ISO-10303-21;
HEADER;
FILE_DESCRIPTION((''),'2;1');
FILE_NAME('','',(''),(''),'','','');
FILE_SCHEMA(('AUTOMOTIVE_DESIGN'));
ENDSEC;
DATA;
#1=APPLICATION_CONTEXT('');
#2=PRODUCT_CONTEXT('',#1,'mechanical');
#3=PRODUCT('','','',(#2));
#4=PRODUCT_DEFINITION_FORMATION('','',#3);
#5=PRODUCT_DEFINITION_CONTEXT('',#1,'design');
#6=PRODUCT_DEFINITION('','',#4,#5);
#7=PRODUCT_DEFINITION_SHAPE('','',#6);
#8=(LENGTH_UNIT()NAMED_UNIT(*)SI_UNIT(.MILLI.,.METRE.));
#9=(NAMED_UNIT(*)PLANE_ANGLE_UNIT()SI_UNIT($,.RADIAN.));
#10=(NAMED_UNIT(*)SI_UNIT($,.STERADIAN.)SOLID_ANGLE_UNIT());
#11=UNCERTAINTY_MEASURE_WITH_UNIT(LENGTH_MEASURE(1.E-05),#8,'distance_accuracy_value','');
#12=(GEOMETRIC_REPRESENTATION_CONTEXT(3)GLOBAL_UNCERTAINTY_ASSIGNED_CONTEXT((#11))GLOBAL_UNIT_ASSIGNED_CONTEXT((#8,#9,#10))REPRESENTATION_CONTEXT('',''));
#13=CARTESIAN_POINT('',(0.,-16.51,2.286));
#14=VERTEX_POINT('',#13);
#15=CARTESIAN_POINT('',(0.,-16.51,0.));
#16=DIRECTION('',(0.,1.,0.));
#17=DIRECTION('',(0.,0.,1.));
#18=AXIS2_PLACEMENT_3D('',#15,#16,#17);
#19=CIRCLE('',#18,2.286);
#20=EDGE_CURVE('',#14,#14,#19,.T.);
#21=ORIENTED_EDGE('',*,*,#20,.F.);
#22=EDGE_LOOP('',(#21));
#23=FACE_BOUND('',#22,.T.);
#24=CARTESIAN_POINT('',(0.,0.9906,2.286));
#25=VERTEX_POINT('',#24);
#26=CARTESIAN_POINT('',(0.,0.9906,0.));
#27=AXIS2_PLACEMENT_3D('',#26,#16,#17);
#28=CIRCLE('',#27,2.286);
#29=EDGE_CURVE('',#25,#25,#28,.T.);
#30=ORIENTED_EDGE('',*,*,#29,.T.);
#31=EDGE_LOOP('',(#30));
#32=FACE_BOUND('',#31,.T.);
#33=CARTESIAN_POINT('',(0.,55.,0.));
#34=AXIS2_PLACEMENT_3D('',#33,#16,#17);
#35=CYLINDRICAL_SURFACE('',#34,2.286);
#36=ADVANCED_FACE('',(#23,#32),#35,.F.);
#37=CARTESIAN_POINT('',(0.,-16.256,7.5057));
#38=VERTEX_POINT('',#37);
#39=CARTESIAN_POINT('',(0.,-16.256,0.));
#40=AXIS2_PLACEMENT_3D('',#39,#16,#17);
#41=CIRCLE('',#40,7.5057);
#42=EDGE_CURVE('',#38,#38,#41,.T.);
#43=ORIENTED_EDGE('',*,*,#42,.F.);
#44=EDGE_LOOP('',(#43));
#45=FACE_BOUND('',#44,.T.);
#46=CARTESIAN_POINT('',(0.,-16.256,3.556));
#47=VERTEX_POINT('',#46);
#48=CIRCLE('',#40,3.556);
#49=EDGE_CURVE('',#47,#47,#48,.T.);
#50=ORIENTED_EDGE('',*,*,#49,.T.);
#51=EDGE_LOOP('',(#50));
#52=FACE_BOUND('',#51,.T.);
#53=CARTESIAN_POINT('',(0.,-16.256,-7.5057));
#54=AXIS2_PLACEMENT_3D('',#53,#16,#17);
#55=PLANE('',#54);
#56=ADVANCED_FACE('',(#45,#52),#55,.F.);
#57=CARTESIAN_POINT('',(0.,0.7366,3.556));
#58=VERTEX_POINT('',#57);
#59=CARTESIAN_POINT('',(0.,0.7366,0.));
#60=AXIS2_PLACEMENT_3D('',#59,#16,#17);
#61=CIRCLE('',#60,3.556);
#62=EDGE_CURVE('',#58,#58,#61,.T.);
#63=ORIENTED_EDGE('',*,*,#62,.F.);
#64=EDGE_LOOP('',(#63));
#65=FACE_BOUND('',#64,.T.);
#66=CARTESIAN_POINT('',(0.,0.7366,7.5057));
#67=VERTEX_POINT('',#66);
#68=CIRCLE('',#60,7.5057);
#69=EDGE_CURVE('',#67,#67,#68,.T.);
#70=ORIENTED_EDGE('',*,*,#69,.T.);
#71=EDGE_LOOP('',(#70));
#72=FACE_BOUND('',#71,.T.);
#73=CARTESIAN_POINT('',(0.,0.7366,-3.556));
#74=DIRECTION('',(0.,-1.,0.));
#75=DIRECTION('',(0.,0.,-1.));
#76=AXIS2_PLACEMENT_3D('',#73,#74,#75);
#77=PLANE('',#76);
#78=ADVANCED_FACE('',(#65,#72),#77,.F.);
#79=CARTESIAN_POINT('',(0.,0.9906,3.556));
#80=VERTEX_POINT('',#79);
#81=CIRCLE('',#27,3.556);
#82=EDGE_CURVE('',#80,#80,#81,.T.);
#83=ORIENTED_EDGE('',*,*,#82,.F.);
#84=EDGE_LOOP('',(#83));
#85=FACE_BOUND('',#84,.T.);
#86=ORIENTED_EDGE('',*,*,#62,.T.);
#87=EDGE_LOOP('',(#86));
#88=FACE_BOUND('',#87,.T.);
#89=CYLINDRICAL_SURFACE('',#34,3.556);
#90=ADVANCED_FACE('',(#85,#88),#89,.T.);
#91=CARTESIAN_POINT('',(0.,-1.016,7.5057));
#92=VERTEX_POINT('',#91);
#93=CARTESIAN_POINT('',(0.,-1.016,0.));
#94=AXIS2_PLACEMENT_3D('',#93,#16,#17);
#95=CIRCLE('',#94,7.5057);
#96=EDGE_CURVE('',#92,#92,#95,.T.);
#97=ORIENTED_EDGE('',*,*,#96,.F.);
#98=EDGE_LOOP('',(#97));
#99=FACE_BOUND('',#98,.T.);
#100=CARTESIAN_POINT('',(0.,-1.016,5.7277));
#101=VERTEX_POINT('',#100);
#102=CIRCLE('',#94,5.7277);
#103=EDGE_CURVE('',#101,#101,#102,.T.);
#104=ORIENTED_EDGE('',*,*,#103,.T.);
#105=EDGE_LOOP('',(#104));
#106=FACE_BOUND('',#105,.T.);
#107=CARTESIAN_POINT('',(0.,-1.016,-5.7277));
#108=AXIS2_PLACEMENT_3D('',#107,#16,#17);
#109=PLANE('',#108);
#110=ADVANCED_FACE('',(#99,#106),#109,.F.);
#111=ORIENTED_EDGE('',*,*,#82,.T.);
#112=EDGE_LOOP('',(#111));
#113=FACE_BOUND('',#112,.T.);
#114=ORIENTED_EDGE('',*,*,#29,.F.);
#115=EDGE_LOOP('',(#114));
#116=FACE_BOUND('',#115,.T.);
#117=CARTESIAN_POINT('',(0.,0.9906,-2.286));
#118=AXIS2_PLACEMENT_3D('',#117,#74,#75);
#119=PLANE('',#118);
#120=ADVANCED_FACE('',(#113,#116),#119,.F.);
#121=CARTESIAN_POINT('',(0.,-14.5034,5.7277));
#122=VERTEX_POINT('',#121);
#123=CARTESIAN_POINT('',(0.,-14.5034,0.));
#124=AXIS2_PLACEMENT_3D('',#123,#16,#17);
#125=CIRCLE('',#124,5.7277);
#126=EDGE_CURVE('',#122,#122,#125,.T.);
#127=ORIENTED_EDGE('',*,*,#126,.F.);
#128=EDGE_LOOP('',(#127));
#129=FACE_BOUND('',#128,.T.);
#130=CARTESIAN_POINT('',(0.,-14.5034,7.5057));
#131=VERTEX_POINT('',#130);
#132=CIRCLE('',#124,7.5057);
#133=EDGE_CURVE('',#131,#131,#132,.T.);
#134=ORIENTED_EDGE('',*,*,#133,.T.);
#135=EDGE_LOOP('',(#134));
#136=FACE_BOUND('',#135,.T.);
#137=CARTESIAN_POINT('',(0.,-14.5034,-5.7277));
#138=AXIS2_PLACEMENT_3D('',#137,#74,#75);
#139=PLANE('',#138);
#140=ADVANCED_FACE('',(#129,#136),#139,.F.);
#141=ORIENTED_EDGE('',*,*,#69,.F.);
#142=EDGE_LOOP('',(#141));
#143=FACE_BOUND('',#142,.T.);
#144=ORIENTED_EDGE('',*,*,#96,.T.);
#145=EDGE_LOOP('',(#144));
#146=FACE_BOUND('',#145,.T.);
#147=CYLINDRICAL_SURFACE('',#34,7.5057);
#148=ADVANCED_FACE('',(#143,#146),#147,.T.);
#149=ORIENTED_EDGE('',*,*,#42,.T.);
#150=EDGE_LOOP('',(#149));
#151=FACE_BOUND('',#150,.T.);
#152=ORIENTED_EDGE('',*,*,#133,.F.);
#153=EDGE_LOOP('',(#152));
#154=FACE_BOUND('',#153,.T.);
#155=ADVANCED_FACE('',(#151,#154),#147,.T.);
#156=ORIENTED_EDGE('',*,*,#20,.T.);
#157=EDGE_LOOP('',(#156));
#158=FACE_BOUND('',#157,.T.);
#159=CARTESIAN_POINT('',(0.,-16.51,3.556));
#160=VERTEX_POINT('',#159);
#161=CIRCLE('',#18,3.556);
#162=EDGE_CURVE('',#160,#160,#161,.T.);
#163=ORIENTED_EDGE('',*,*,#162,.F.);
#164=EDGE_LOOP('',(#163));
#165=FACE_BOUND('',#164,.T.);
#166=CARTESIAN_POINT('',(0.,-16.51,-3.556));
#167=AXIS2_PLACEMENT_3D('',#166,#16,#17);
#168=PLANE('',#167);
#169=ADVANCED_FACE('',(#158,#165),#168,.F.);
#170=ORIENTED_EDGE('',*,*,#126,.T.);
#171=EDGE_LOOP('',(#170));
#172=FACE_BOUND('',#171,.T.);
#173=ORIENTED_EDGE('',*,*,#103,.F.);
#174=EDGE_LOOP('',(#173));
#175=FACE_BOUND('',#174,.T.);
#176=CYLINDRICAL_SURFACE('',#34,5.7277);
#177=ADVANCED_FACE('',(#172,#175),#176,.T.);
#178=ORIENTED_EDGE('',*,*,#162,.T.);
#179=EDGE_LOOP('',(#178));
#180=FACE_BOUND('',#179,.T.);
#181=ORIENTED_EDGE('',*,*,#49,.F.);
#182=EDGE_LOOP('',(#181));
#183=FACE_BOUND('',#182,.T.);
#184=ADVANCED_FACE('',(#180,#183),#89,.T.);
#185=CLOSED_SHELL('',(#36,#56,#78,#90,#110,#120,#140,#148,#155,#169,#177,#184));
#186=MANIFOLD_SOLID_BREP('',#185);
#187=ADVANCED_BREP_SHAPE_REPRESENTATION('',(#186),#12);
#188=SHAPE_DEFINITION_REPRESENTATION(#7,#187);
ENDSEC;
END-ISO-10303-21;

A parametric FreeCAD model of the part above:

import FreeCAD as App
import Part
import Sketcher

V = App.Vector
Q = App.Units.Quantity

doc = App.newDocument("Part")
body = doc.addObject("PartDesign::Body", "Body")

sketch1 = body.newObject("Sketcher::SketchObject", "Sketch")
sketch1.AttachmentSupport = (doc.getObject("YZ_Plane"), [""])
sketch1.MapMode = "FlatFace"
sketch1.addGeometry([
    Part.LineSegment(V(0.99, -3.56, 0), V(0.99, -2.29, 0)),
    Part.LineSegment(V(0.99, -2.29, 0), V(-16.51, -2.29, 0)),
    Part.LineSegment(V(-16.51, -2.29, 0), V(-16.51, -3.56, 0)),
    Part.LineSegment(V(-16.51, -3.56, 0), V(-16.26, -3.56, 0)),
    Part.LineSegment(V(-16.26, -3.56, 0), V(-16.26, -7.51, 0)),
    Part.LineSegment(V(-16.26, -7.51, 0), V(-14.5, -7.51, 0)),
    Part.LineSegment(V(-14.5, -7.51, 0), V(-14.5, -5.73, 0)),
    Part.LineSegment(V(-14.5, -5.73, 0), V(-1.02, -5.73, 0)),
    Part.LineSegment(V(-1.02, -5.73, 0), V(-1.02, -7.51, 0)),
    Part.LineSegment(V(-1.02, -7.51, 0), V(0.74, -7.51, 0)),
    Part.LineSegment(V(0.74, -7.51, 0), V(0.74, -3.56, 0)),
    Part.LineSegment(V(0.74, -3.56, 0), V(0.99, -3.56, 0)),
], False)
sketch1.addConstraint([
    Sketcher.Constraint("Coincident", 0, 2, 1, 1),
    Sketcher.Constraint("Coincident", 1, 2, 2, 1),
    Sketcher.Constraint("Coincident", 2, 2, 3, 1),
    Sketcher.Constraint("Coincident", 3, 2, 4, 1),
    Sketcher.Constraint("Coincident", 4, 2, 5, 1),
    Sketcher.Constraint("Coincident", 5, 2, 6, 1),
    Sketcher.Constraint("Coincident", 6, 2, 7, 1),
    Sketcher.Constraint("Coincident", 7, 2, 8, 1),
    Sketcher.Constraint("Coincident", 8, 2, 9, 1),
    Sketcher.Constraint("Coincident", 9, 2, 10, 1),
    Sketcher.Constraint("Coincident", 10, 2, 11, 1),
    Sketcher.Constraint("Coincident", 11, 2, 0, 1),
    Sketcher.Constraint("Vertical", 0),
    Sketcher.Constraint("Horizontal", 1),
    Sketcher.Constraint("Vertical", 2),
    Sketcher.Constraint("Horizontal", 3),
    Sketcher.Constraint("Vertical", 4),
    Sketcher.Constraint("Horizontal", 5),
    Sketcher.Constraint("Vertical", 6),
    Sketcher.Constraint("Horizontal", 7),
    Sketcher.Constraint("Vertical", 8),
    Sketcher.Constraint("Horizontal", 9),
    Sketcher.Constraint("Vertical", 10),
    Sketcher.Constraint("Horizontal", 11),
    Sketcher.Constraint("Horizontal", 5, 2, 8, 2),
    Sketcher.Constraint("Horizontal", 3, 2, 10, 2),
    Sketcher.Constraint("Equal", 5, 9),
    Sketcher.Constraint("Equal", 3, 11),
    Sketcher.Constraint("DistanceX", 3, 1, 3, 2, Q("0.01 in")),
    Sketcher.Constraint("DistanceY", 0, 1, 0, 2, Q("0.05 in")),
    Sketcher.Constraint("DistanceY", 6, 1, 6, 2, Q("0.07 in")),
    Sketcher.Constraint("DistanceX", 4, 2, 7, 2, Q("0.6 in")),
    Sketcher.Constraint("DistanceX", 1, 2, 1, 1, Q("0.689 in")),
    Sketcher.Constraint("DistanceY", 0, 2, -1, 1, Q("0.09 in")),
    Sketcher.Constraint("DistanceX", 1, 2, -1, 1, Q("0.65 in")),
    Sketcher.Constraint("DistanceY", 4, 2, 4, 1, Q("0.1555 in")),
])
revolution = body.newObject("PartDesign::Revolution", "Revolution")
revolution.Profile = sketch1
revolution.ReferenceAxis = (sketch1, ["H_Axis"])
revolution.Angle = 360

doc.recompute()
